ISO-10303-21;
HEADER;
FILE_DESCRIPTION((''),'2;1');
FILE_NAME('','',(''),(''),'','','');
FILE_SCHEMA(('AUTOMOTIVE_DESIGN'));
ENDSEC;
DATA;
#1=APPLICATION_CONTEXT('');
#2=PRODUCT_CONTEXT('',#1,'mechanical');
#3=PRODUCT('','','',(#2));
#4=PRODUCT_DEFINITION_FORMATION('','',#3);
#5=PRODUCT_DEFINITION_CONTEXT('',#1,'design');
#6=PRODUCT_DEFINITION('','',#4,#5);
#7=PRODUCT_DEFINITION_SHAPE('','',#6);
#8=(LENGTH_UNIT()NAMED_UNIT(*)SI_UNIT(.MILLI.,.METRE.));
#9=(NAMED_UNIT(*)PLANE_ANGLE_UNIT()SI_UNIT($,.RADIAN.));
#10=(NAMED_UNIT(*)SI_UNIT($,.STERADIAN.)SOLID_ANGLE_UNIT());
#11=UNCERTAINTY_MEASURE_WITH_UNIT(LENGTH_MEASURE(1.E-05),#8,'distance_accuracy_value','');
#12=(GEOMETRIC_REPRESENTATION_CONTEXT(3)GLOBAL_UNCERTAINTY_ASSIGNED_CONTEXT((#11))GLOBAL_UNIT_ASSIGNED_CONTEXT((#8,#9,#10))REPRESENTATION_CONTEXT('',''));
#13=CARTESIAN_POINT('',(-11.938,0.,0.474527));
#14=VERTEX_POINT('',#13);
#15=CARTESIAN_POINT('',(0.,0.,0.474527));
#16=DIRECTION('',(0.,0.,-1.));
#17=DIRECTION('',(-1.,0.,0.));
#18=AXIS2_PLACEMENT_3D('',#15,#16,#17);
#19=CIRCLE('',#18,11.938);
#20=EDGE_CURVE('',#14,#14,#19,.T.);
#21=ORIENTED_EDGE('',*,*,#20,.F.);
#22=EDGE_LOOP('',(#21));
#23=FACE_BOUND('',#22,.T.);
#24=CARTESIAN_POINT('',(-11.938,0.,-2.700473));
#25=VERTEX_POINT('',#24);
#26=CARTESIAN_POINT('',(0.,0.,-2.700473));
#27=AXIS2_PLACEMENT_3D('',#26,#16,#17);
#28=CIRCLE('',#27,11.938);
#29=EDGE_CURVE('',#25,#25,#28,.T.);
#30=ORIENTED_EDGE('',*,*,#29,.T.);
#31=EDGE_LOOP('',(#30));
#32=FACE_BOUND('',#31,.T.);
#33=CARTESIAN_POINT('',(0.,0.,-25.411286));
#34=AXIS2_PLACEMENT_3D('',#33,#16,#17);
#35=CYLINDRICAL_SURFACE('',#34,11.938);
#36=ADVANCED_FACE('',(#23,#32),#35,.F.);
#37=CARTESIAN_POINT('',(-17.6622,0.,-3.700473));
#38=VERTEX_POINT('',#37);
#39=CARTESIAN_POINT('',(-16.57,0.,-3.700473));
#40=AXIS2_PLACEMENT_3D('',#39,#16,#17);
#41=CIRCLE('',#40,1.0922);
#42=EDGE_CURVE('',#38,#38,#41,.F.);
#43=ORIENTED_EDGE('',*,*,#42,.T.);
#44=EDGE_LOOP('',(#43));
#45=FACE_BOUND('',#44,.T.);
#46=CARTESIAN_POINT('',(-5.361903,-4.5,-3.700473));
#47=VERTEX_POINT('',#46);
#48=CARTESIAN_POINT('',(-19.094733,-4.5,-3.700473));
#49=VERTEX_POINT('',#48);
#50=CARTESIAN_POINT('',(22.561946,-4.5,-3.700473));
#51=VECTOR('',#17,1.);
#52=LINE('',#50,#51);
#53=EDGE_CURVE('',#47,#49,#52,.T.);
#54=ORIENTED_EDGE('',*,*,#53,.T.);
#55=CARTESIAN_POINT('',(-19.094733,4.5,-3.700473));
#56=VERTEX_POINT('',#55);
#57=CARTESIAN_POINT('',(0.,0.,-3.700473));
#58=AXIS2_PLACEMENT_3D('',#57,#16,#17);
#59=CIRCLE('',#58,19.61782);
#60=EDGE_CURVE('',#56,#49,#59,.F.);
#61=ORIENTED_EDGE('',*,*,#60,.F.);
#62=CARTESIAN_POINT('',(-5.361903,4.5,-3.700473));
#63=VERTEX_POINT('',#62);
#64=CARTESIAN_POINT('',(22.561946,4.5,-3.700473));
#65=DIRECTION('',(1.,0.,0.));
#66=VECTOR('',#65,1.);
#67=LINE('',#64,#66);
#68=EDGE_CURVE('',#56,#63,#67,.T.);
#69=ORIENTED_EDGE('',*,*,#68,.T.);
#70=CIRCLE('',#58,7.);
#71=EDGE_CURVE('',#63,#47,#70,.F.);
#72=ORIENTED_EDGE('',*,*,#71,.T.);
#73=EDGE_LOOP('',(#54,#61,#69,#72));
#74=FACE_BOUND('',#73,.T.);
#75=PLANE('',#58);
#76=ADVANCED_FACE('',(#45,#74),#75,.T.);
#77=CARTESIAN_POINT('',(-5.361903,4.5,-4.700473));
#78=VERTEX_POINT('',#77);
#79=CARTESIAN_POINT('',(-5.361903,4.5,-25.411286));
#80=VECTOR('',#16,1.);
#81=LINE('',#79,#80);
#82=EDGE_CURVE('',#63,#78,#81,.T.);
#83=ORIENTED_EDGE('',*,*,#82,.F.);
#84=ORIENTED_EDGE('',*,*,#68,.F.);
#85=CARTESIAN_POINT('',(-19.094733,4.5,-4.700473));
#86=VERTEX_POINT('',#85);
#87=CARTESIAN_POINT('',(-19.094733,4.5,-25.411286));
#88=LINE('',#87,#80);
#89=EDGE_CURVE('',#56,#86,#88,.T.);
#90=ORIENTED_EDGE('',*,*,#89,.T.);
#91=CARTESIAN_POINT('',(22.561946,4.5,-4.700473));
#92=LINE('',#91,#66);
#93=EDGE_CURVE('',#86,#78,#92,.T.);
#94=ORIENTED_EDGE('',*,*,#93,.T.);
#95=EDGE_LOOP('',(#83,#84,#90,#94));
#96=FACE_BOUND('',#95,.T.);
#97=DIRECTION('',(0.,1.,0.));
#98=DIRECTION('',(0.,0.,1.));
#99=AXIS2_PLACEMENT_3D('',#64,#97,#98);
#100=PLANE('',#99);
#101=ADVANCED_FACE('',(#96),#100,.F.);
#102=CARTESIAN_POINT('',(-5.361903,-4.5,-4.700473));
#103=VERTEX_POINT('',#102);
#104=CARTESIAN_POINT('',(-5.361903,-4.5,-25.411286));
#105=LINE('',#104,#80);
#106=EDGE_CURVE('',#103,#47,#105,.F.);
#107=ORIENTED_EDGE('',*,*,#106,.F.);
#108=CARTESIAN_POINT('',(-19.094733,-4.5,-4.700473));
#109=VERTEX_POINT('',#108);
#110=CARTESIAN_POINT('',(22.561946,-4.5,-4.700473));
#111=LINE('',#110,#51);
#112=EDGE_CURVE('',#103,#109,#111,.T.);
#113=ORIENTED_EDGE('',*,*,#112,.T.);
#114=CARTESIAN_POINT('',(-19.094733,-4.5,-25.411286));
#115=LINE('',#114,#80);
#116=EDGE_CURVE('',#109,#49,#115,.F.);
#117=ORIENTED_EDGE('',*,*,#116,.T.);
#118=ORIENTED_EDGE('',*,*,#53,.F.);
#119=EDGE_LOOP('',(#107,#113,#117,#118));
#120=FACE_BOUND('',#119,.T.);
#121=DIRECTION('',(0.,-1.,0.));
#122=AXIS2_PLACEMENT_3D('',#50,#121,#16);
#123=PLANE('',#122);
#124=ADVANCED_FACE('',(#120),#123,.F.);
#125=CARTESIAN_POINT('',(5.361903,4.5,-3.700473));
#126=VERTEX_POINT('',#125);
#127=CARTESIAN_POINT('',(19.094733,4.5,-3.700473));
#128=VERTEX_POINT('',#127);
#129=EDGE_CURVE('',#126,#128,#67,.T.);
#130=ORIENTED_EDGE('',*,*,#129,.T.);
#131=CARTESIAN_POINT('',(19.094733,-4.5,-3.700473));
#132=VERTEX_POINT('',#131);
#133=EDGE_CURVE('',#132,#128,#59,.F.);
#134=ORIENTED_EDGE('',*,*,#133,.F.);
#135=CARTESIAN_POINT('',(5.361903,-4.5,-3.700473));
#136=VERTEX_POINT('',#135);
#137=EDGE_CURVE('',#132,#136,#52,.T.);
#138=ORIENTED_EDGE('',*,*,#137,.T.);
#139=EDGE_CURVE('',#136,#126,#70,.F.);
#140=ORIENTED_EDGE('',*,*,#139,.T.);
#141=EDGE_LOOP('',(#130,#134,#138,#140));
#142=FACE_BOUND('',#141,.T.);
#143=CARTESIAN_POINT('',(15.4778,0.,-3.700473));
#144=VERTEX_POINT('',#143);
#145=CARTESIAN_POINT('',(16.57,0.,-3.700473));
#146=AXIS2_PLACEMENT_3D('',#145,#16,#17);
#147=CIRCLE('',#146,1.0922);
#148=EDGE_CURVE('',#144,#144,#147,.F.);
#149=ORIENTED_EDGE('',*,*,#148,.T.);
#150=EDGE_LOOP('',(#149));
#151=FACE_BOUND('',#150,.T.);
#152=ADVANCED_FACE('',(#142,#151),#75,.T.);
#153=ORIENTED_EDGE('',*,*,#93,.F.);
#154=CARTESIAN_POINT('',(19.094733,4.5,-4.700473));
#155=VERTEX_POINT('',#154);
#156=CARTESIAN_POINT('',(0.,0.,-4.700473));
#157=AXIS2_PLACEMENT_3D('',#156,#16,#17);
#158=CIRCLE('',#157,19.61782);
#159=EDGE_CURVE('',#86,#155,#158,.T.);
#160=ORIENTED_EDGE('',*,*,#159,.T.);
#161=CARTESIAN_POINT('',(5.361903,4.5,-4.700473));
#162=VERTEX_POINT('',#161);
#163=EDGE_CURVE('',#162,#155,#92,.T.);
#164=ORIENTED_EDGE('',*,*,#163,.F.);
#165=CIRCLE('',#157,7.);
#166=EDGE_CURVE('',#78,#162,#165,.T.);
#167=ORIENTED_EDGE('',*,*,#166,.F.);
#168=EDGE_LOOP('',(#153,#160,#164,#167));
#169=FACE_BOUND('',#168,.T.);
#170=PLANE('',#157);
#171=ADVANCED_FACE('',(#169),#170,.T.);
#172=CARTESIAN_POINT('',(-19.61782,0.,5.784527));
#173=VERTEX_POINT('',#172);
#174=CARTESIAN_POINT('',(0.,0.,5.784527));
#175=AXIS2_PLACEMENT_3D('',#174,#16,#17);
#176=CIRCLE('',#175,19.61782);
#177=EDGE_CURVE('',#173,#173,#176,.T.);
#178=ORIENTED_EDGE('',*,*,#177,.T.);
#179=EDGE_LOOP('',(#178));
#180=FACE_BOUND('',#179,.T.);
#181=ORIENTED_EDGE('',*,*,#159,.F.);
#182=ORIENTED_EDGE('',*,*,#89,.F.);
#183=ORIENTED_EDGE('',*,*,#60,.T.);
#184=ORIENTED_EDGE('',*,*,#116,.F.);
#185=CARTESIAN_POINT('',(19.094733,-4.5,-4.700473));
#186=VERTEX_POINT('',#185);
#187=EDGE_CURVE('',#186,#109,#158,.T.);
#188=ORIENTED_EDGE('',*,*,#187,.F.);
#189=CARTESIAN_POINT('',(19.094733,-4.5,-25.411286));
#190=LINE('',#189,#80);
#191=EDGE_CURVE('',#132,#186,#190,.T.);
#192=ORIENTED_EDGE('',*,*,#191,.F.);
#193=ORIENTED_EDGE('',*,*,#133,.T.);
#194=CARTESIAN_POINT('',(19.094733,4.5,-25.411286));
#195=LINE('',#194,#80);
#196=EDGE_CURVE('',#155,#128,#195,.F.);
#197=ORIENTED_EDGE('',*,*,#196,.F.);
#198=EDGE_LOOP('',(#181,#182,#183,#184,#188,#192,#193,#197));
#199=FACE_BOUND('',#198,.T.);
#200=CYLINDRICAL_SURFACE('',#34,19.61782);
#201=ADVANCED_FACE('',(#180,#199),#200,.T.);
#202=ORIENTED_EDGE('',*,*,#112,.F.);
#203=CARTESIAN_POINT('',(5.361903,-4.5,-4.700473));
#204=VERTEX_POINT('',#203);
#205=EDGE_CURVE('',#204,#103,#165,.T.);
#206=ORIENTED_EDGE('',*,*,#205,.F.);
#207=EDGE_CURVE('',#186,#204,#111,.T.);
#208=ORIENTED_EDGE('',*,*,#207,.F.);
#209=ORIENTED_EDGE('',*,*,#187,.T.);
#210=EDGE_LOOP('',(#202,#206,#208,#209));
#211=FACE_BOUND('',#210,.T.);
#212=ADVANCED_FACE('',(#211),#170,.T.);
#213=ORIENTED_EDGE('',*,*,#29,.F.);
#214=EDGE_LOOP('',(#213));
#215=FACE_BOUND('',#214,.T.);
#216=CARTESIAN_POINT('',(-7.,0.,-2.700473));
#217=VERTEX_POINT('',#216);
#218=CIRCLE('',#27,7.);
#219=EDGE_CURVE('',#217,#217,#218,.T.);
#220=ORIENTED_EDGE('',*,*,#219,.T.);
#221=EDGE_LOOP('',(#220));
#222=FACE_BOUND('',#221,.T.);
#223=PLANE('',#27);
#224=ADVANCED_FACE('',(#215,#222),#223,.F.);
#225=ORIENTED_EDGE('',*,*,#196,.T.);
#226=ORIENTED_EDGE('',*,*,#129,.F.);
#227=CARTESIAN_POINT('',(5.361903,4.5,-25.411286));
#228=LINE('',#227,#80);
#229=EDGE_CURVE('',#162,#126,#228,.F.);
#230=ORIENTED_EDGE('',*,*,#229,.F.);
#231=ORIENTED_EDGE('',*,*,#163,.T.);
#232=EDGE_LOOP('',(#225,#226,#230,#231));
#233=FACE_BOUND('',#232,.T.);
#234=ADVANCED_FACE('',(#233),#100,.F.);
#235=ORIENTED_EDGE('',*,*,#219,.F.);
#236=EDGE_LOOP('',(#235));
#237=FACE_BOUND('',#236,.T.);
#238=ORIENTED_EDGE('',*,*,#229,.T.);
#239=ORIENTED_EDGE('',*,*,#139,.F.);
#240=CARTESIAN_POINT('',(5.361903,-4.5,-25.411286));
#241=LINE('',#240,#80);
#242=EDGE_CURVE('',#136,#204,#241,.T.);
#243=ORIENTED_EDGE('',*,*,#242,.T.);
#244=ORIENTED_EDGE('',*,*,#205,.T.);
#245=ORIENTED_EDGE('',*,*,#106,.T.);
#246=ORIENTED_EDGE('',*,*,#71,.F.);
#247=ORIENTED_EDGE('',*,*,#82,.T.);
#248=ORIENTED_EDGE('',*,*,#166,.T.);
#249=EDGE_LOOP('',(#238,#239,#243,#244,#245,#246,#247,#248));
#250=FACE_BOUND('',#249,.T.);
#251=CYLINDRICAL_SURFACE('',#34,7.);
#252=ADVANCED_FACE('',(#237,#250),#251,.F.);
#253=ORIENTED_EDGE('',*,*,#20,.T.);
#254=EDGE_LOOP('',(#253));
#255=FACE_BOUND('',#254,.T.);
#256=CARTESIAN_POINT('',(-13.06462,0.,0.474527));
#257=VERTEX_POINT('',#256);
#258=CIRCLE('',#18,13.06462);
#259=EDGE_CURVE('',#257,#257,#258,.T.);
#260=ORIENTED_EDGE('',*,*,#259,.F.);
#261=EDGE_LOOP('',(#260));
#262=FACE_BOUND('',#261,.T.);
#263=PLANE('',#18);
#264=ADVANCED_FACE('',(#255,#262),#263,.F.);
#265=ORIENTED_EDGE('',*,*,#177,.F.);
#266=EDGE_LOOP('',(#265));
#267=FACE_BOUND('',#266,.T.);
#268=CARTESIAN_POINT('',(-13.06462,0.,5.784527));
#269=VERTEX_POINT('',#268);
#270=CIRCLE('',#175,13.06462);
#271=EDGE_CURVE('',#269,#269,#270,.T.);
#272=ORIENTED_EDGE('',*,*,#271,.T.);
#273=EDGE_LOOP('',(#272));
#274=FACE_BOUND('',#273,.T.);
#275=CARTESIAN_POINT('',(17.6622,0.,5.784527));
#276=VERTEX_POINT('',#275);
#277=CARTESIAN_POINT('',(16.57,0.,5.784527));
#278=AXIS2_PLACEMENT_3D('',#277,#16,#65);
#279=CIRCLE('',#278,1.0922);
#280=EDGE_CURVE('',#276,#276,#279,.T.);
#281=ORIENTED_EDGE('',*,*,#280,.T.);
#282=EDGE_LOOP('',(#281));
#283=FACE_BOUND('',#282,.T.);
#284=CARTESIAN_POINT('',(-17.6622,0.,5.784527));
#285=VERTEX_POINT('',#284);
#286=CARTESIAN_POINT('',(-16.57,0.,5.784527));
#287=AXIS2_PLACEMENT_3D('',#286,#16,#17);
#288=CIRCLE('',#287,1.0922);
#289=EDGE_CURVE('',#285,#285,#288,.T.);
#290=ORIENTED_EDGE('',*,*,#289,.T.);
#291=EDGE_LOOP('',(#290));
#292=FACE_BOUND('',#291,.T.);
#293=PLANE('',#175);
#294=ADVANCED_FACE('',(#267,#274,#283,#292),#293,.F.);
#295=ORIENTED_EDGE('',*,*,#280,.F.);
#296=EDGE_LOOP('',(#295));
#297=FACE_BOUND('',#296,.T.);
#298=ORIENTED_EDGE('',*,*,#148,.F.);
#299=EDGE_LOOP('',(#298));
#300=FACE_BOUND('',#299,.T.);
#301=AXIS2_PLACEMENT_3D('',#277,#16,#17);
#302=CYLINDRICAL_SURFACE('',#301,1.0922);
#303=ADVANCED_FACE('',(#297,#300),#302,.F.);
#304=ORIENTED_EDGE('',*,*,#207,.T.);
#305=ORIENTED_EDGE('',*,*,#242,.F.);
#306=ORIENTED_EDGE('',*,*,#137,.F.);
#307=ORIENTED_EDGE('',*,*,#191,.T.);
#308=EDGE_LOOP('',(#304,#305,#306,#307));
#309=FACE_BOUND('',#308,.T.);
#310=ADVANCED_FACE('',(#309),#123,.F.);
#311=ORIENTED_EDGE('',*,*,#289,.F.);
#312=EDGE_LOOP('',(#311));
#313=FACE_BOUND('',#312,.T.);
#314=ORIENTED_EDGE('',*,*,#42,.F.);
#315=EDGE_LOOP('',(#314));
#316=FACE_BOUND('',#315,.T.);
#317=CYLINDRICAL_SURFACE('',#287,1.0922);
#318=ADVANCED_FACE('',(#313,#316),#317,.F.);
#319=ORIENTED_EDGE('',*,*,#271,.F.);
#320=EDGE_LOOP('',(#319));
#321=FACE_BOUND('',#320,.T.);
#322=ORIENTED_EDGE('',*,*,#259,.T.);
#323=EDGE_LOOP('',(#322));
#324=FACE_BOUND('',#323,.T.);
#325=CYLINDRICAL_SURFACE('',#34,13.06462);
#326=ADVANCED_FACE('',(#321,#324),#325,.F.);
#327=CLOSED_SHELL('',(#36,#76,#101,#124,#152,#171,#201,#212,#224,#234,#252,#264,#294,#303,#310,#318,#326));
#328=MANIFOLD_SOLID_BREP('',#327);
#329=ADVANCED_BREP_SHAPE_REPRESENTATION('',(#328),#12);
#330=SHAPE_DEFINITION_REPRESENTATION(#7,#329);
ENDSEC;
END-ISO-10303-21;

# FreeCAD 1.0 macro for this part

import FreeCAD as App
import Part
import Sketcher


def add_polygon(sketch, points):
    """Adds a closed chain of lines whose ends are joined by coincident constraints."""
    first, n = sketch.GeometryCount, len(points)
    for a, b in zip(points, points[1:] + points[:1]):
        sketch.addGeometry(Part.LineSegment(App.Vector(*a, 0), App.Vector(*b, 0)), False)
    for i in range(n):
        sketch.addConstraint(Sketcher.Constraint("Coincident", first + i, 2, first + (i + 1) % n, 1))

doc = App.newDocument("Part")
body = doc.addObject("PartDesign::Body", "Body")

# Sketch on XZ plane
sketch1 = body.newObject("Sketcher::SketchObject", "Sketch")
sketch1.AttachmentSupport = (doc.getObject("XZ_Plane"), [""])
sketch1.MapMode = "FlatFace"
add_polygon(sketch1, [(-19.61782, -4.700473), (-19.61782, 5.784527), (-13.06462, 5.784527), (-13.06462, 0.474527), (-11.938, 0.474527), (-11.938, -2.700473), (-7, -2.700473), (-7, -4.700473)])  # lines 0-7
sketch1.addConstraint(Sketcher.Constraint("Vertical", 0))
sketch1.addConstraint(Sketcher.Constraint("Horizontal", 1))
sketch1.addConstraint(Sketcher.Constraint("Vertical", 2))
sketch1.addConstraint(Sketcher.Constraint("Horizontal", 3))
sketch1.addConstraint(Sketcher.Constraint("Vertical", 4))
sketch1.addConstraint(Sketcher.Constraint("Horizontal", 5))
sketch1.addConstraint(Sketcher.Constraint("Vertical", 6))
sketch1.addConstraint(Sketcher.Constraint("Horizontal", 7))
sketch1.addConstraint(Sketcher.Constraint("DistanceY", 6, 2, 6, 1, 2.0))
sketch1.addConstraint(Sketcher.Constraint("DistanceX", 5, 2, -1, 1, 7.0))
sketch1.addConstraint(Sketcher.Constraint("DistanceY", 2, 2, 2, 1, 5.31))
sketch1.addConstraint(Sketcher.Constraint("DistanceX", 5, 1, 5, 2, 4.938))
sketch1.addConstraint(Sketcher.Constraint("DistanceY", 0, 1, 0, 2, 10.485))
sketch1.addConstraint(Sketcher.Constraint("DistanceX", 1, 1, 1, 2, 6.5532))
sketch1.addConstraint(Sketcher.Constraint("DistanceX", 3, 1, 3, 2, 1.12662))
sketch1.addConstraint(Sketcher.Constraint("DistanceY", -1, 1, 0, 2, 5.784527))
revolution = body.newObject("PartDesign::Revolution", "Revolution")
revolution.Profile = sketch1
revolution.ReferenceAxis = (sketch1, ["V_Axis"])
revolution.Angle = 360

# Sketch on XY plane
sketch2 = body.newObject("Sketcher::SketchObject", "Sketch001")
sketch2.AttachmentSupport = (doc.getObject("XY_Plane"), [""])
sketch2.MapMode = "FlatFace"
sketch2.AttachmentOffset = App.Placement(App.Vector(0, 0, -4.700473), App.Rotation())
sketch2.addGeometry(Part.Circle(App.Vector(-16.57, 0, 0), App.Vector(0, 0, 1), 1.0922), False)
sketch2.addGeometry(Part.Circle(App.Vector(16.57, 0, 0), App.Vector(0, 0, 1), 1.0922), False)
sketch2.addConstraint(Sketcher.Constraint("Equal", 0, 1))
sketch2.addConstraint(Sketcher.Constraint("Symmetric", 0, 3, 1, 3, -1, 1))
sketch2.addConstraint(Sketcher.Constraint("PointOnObject", 0, 3, -1))
sketch2.addConstraint(Sketcher.Constraint("Diameter", 0, 2.1844))
sketch2.addConstraint(Sketcher.Constraint("DistanceX", 0, 3, -1, 1, 16.57))
pocket1 = body.newObject("PartDesign::Pocket", "Pocket")
pocket1.Profile = sketch2
pocket1.Type = "ThroughAll"
pocket1.Reversed = True

# Sketch on XY plane
sketch3 = body.newObject("Sketcher::SketchObject", "Sketch002")
sketch3.AttachmentSupport = (doc.getObject("XY_Plane"), [""])
sketch3.MapMode = "FlatFace"
sketch3.AttachmentOffset = App.Placement(App.Vector(0, 0, -4.700473), App.Rotation())
add_polygon(sketch3, [(22.561946, 4.5), (22.561946, -4.5), (-22.561946, -4.5), (-22.561946, 4.5)])  # lines 0-3
sketch3.addConstraint(Sketcher.Constraint("Vertical", 0))
sketch3.addConstraint(Sketcher.Constraint("Horizontal", 1))
sketch3.addConstraint(Sketcher.Constraint("Vertical", 2))
sketch3.addConstraint(Sketcher.Constraint("Horizontal", 3))
sketch3.addConstraint(Sketcher.Constraint("Symmetric", 0, 2, 2, 2, -1, 1))
sketch3.addConstraint(Sketcher.Constraint("DistanceY", 0, 2, 0, 1, 9.0))
sketch3.addConstraint(Sketcher.Constraint("DistanceX", 1, 2, 1, 1, 45.123893))
pocket2 = body.newObject("PartDesign::Pocket", "Pocket001")
pocket2.Profile = sketch3
pocket2.Length = 1
pocket2.Reversed = True

doc.recompute()
